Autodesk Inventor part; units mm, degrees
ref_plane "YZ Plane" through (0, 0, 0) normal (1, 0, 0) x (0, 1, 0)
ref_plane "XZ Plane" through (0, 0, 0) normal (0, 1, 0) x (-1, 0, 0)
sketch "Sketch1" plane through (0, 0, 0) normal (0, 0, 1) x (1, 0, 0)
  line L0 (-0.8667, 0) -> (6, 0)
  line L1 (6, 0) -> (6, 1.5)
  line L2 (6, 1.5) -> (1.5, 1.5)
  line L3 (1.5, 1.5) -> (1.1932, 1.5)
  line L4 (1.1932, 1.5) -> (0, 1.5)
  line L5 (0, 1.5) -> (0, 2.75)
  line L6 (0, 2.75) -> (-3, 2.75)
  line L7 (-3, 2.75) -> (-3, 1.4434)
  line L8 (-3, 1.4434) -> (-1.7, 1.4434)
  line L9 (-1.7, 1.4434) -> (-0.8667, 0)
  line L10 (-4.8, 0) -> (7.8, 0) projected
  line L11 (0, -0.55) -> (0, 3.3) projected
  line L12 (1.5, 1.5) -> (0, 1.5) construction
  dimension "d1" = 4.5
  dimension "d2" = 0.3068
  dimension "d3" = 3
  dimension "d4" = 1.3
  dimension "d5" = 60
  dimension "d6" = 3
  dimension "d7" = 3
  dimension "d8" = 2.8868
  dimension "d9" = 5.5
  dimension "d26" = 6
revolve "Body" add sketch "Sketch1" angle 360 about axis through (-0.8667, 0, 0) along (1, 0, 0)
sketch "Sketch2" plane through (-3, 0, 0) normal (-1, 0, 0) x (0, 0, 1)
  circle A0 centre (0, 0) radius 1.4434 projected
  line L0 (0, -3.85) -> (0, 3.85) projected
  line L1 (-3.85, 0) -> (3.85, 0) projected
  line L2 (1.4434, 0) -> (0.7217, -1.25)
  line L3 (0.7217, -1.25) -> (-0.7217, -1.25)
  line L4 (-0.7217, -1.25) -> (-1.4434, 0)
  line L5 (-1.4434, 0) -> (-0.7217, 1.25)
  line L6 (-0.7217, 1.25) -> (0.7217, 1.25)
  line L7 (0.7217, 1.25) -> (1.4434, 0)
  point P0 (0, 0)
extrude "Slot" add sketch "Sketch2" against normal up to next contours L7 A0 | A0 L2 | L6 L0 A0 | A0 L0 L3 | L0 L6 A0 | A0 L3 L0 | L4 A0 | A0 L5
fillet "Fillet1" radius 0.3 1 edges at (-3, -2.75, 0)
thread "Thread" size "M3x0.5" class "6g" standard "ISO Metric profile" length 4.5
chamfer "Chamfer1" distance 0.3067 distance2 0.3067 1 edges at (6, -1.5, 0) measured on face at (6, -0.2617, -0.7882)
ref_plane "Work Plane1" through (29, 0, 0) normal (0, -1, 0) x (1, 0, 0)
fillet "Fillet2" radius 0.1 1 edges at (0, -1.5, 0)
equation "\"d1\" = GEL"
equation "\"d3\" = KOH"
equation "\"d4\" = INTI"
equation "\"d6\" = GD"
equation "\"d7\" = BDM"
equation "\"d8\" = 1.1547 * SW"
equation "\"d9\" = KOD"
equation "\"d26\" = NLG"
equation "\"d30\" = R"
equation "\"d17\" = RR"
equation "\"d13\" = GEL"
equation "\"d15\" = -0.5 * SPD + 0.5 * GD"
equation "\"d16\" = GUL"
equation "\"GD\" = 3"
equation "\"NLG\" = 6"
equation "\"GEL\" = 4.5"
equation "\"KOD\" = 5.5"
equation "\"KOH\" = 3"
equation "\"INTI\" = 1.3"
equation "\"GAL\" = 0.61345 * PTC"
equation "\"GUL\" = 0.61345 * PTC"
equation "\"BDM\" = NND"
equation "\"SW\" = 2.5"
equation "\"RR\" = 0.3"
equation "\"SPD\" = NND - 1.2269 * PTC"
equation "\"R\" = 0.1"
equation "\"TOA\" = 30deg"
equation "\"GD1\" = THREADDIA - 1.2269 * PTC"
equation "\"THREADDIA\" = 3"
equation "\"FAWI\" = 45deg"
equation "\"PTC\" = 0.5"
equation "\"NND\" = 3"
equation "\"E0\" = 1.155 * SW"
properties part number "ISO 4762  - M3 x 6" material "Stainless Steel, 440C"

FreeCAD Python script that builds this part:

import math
import FreeCAD as App
import Part
import Sketcher

V = App.Vector
Q = App.Units.Quantity


def edges_at(feature, points):
    """Names of the edges that pass closest to the given points."""
    edges = feature.Shape.Edges
    near = lambda p: min(range(len(edges)), key=lambda i: edges[i].distToShape(Part.Vertex(*p))[0])
    return sorted({f"Edge{near(p) + 1}" for p in points})


def add_polygon(sketch, points):
    """Adds a closed chain of lines whose ends are joined by coincident constraints."""
    first, n = sketch.GeometryCount, len(points)
    for a, b in zip(points, points[1:] + points[:1]):
        sketch.addGeometry(Part.LineSegment(App.Vector(*a, 0), App.Vector(*b, 0)), False)
    for i in range(n):
        sketch.addConstraint(Sketcher.Constraint("Coincident", first + i, 2, first + (i + 1) % n, 1))

doc = App.newDocument("Part")
body = doc.addObject("PartDesign::Body", "Body")

# Sketch on XY plane
sketch1 = doc.addObject("Sketcher::SketchObject", "Sketch")
body.addObject(sketch1)
sketch1.AttachmentSupport = (doc.XY_Plane, [""])
sketch1.MapMode = "FlatFace"
add_polygon(sketch1, [(-1.7, 1.4), (-0.9, 0), (6, 0), (6, 1.5), (0, 1.5), (0, 2.8), (-3, 2.8), (-3, 1.4)])  # lines 0-7
sketch1.addConstraint([
    Sketcher.Constraint("Horizontal", 1),
    Sketcher.Constraint("Vertical", 2),
    Sketcher.Constraint("Horizontal", 3),
    Sketcher.Constraint("Vertical", 4),
    Sketcher.Constraint("Horizontal", 5),
    Sketcher.Constraint("Vertical", 6),
    Sketcher.Constraint("Horizontal", 7),
    Sketcher.Constraint("PointOnObject", 0, 2, -1),
    Sketcher.Constraint("PointOnObject", 3, 2, -2),
    Sketcher.Constraint("DistanceX", 3, 2, 3, 1, 6.0),
    Sketcher.Constraint("DistanceX", 5, 2, 5, 1, 3.0),
    Sketcher.Constraint("DistanceX", 7, 1, 7, 2, 1.3),
    Sketcher.Constraint("DistanceY", 2, 1, 2, 2, 1.5),
    Sketcher.Constraint("DistanceY", 4, 1, 4, 2, 1.25),
    Sketcher.Constraint("DistanceX", 1, 1, 1, 2, 6.8667),
    Sketcher.Constraint("DistanceY", 6, 2, 6, 1, 1.3066),
])
revolution = doc.addObject("PartDesign::Revolution", "Revolution")
body.addObject(revolution)
revolution.Profile = sketch1
revolution.ReferenceAxis = (sketch1, ["H_Axis"])
revolution.Angle = 360

# Sketch on YZ plane
sketch2 = doc.addObject("Sketcher::SketchObject", "Sketch001")
body.addObject(sketch2)
sketch2.AttachmentSupport = (doc.YZ_Plane, [""])
sketch2.MapMode = "FlatFace"
sketch2.AttachmentOffset = App.Placement(V(0, 0, -3), App.Rotation())
sketch2.addGeometry([
    Part.LineSegment(V(1.2, 0.7, 0), V(0, 1.4, 0)),  # 0
    Part.ArcOfCircle(Part.Circle(V(0, 0, 0), V(0, 0, 1), 1.4), math.radians(30), math.radians(90)),  # 1
    Part.ArcOfCircle(Part.Circle(V(0, 0, 0), V(0, 0, 1), 1.4), math.radians(90), math.radians(150)),  # 2
    Part.LineSegment(V(0, 1.4, 0), V(-1.2, 0.7, 0)),  # 3
    Part.ArcOfCircle(Part.Circle(V(0, 0, 0), V(0, 0, 1), 1.4), math.radians(-30), math.radians(30)),  # 4
    Part.LineSegment(V(1.2, 0.7, 0), V(1.2, -0.7, 0)),  # 5
    Part.LineSegment(V(-1.2, 0.7, 0), V(-1.2, -0.7, 0)),  # 6
    Part.ArcOfCircle(Part.Circle(V(0, 0, 0), V(0, 0, 1), 1.4), math.radians(150), math.radians(210)),  # 7
    Part.LineSegment(V(-1.2, -0.7, 0), V(0, -1.4, 0)),  # 8
    Part.ArcOfCircle(Part.Circle(V(0, 0, 0), V(0, 0, 1), 1.4), math.radians(-150), math.radians(-90)),  # 9
    Part.ArcOfCircle(Part.Circle(V(0, 0, 0), V(0, 0, 1), 1.4), math.radians(-90), math.radians(-30)),  # 10
    Part.LineSegment(V(0, -1.4, 0), V(1.2, -0.7, 0)),  # 11
], False)
sketch2.addConstraint([
    Sketcher.Constraint("Coincident", 0, 1, 1, 1),
    Sketcher.Constraint("Coincident", 1, 2, 0, 2),
    Sketcher.Constraint("Coincident", 2, 1, 3, 1),
    Sketcher.Constraint("Coincident", 3, 2, 2, 2),
    Sketcher.Constraint("Coincident", 4, 1, 5, 2),
    Sketcher.Constraint("Coincident", 5, 1, 4, 2),
    Sketcher.Constraint("Coincident", 6, 1, 7, 1),
    Sketcher.Constraint("Coincident", 7, 2, 6, 2),
    Sketcher.Constraint("Coincident", 8, 1, 9, 1),
    Sketcher.Constraint("Coincident", 9, 2, 8, 2),
    Sketcher.Constraint("Coincident", 10, 1, 11, 1),
    Sketcher.Constraint("Coincident", 11, 2, 10, 2),
    Sketcher.Constraint("Vertical", 5),
    Sketcher.Constraint("Vertical", 6),
    Sketcher.Constraint("Coincident", 1, 3, -1, 1),
    Sketcher.Constraint("Coincident", 2, 3, -1, 1),
    Sketcher.Constraint("Coincident", 4, 3, -1, 1),
    Sketcher.Constraint("Coincident", 7, 3, -1, 1),
    Sketcher.Constraint("Coincident", 9, 3, -1, 1),
    Sketcher.Constraint("Coincident", 10, 3, -1, 1),
    Sketcher.Constraint("Coincident", 2, 1, 1, 2),
    Sketcher.Constraint("Coincident", 5, 1, 0, 1),
    Sketcher.Constraint("Coincident", 6, 1, 3, 2),
    Sketcher.Constraint("Coincident", 8, 1, 7, 2),
    Sketcher.Constraint("Coincident", 10, 1, 9, 2),
    Sketcher.Constraint("PointOnObject", 1, 2, -2),
    Sketcher.Constraint("PointOnObject", 9, 2, -2),
    Sketcher.Constraint("Parallel", 0, 8),
    Sketcher.Constraint("Parallel", 3, 11),
    Sketcher.Constraint("Angle", 0, Q("149.9996 deg")),
    Sketcher.Constraint("Radius", 1, 1.4434),
])
pad1 = doc.addObject("PartDesign::Pad", "Pad")
body.addObject(pad1)
pad1.Profile = sketch2
pad1.Type = "UpToFirst"
doc.recompute()

fillet = doc.addObject("PartDesign::Fillet", "Fillet")
body.addObject(fillet)
fillet.Base = (pad1, edges_at(pad1, [(-3, -2.75, 0)]))
fillet.Radius = 0.3
doc.recompute()

chamfer = doc.addObject("PartDesign::Chamfer", "Chamfer")
body.addObject(chamfer)
chamfer.Base = (fillet, edges_at(fillet, [(6, -1.5, 0)]))
chamfer.ChamferType = "Two distances"
chamfer.Size = 0.3067
chamfer.Size2 = 0.3067
doc.recompute()

fillet2 = doc.addObject("PartDesign::Fillet", "Fillet001")
body.addObject(fillet2)
fillet2.Base = (chamfer, edges_at(chamfer, [(0, -1.5, 0)]))
fillet2.Radius = 0.1

doc.recompute()
